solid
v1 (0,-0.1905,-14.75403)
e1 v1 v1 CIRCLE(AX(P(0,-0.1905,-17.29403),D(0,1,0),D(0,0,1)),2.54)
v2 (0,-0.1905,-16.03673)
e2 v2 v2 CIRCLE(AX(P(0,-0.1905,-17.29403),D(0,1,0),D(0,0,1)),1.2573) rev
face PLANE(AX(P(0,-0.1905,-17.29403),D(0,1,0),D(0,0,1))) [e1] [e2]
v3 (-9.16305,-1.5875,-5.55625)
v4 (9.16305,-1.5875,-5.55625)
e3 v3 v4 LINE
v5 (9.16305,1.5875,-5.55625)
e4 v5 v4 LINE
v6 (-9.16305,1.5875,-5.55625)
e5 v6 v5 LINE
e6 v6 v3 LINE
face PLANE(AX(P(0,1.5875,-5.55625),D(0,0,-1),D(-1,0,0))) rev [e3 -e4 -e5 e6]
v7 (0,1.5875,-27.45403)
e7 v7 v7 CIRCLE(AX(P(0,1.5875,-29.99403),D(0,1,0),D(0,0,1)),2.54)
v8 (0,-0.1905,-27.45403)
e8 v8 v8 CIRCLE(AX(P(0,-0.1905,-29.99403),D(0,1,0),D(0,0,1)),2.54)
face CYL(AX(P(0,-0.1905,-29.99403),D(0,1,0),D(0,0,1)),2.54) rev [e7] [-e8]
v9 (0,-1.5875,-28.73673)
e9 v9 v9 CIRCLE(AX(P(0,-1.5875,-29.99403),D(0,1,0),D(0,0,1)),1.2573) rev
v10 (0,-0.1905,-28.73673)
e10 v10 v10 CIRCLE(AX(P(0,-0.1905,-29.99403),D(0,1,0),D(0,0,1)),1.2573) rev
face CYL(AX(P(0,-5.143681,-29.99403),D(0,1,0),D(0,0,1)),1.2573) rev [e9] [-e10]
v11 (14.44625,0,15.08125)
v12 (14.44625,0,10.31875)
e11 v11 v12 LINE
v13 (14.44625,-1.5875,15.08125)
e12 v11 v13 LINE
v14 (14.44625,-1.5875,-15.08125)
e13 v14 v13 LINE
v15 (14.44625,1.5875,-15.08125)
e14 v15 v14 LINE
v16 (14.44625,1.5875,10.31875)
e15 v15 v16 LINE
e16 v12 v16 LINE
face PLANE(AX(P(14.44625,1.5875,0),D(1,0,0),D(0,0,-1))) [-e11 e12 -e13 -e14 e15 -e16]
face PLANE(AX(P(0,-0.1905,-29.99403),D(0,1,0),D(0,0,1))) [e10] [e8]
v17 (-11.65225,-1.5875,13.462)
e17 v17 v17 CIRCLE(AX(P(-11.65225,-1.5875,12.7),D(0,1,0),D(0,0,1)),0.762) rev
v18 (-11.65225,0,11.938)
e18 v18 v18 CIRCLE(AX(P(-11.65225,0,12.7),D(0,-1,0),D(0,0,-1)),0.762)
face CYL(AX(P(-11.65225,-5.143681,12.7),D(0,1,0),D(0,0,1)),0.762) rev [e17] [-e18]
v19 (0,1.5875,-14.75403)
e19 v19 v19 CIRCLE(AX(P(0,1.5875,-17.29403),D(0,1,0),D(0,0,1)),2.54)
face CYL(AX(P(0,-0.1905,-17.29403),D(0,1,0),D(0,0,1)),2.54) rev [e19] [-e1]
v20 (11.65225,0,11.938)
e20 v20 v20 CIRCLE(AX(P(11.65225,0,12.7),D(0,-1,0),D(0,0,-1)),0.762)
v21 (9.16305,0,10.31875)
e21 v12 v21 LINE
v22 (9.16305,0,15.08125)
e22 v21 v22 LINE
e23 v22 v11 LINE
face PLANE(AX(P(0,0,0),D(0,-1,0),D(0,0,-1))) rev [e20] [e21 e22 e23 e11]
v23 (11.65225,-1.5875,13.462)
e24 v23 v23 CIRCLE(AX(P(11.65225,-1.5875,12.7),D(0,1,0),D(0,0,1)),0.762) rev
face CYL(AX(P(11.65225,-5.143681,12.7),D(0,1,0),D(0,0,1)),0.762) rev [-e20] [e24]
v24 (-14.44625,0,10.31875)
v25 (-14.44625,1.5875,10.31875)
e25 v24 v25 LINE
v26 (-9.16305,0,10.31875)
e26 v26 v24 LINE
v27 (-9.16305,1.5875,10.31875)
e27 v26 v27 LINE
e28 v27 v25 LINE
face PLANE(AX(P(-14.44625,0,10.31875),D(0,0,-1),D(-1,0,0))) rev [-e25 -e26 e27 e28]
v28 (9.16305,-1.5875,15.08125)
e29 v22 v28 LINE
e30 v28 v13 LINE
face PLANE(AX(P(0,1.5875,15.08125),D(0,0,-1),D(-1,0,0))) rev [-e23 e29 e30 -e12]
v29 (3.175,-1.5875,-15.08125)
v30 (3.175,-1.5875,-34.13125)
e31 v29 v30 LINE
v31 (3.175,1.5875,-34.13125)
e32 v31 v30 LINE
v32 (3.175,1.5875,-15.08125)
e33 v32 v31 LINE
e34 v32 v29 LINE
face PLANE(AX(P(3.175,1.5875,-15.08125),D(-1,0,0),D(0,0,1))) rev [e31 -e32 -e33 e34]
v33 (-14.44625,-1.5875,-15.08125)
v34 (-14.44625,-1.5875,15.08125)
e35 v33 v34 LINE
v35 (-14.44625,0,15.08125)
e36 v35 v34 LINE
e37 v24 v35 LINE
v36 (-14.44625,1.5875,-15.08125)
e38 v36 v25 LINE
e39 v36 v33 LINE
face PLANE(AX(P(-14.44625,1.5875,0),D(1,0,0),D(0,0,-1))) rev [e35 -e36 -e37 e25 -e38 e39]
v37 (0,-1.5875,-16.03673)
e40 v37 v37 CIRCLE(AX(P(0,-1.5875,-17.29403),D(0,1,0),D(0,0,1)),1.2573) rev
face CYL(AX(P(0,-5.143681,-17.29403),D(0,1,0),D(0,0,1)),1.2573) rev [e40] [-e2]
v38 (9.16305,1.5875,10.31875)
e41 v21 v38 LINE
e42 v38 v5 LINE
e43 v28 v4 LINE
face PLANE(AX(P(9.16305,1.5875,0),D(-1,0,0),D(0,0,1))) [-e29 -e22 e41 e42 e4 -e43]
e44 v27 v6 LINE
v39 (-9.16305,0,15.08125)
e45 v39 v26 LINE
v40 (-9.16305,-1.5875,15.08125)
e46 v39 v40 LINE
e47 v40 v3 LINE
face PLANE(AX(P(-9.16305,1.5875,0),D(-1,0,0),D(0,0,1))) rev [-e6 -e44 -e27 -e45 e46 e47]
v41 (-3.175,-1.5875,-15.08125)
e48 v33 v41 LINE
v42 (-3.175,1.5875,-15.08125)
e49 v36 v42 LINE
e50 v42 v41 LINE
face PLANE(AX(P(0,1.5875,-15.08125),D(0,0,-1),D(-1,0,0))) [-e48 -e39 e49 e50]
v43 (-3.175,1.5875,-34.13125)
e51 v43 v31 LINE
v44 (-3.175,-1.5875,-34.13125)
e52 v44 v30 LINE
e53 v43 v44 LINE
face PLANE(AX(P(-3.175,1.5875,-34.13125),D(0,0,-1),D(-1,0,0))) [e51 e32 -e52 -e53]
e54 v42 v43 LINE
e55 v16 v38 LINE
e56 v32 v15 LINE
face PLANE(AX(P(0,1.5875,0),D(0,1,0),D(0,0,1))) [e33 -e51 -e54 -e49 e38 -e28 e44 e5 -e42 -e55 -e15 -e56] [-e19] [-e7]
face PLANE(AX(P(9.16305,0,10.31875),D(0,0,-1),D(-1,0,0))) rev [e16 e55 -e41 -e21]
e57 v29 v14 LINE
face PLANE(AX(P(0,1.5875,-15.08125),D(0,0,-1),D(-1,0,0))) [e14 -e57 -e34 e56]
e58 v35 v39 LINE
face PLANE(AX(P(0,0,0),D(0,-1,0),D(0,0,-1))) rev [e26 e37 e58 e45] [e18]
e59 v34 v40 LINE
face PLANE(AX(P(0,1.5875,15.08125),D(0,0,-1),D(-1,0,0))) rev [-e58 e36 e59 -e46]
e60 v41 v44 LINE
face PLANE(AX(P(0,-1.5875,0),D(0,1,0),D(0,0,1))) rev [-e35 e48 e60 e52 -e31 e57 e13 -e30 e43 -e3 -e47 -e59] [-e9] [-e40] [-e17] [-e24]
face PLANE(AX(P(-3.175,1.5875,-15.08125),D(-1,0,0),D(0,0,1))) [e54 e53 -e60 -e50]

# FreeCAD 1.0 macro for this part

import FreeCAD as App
import Part
import Sketcher
from FreeCAD import Vector
Q = App.Units.Quantity

doc = App.newDocument("Part")
body = doc.addObject("PartDesign::Body", "Body")

# Sketch on XZ plane
sketch1 = doc.addObject("Sketcher::SketchObject", "Sketch")
body.addObject(sketch1)
sketch1.AttachmentSupport = (doc.XZ_Plane, [""])
sketch1.MapMode = "FlatFace"
sketch1.addGeometry([
    Part.LineSegment(Vector(-14, -15, 0), Vector(-14, 15, 0)),  # 0
    Part.LineSegment(Vector(-14, 15, 0), Vector(-9, 15, 0)),  # 1
    Part.LineSegment(Vector(-9, 15, 0), Vector(-9, -6, 0)),  # 2
    Part.LineSegment(Vector(-9, -6, 0), Vector(9, -6, 0)),  # 3
    Part.LineSegment(Vector(9, -6, 0), Vector(9, 15, 0)),  # 4
    Part.LineSegment(Vector(9, 15, 0), Vector(14, 15, 0)),  # 5
    Part.LineSegment(Vector(14, 15, 0), Vector(14, -15, 0)),  # 6
    Part.LineSegment(Vector(14, -15, 0), Vector(3, -15, 0)),  # 7
    Part.LineSegment(Vector(3, -15, 0), Vector(3, -34, 0)),  # 8
    Part.LineSegment(Vector(3, -34, 0), Vector(-3, -34, 0)),  # 9
    Part.LineSegment(Vector(-3, -34, 0), Vector(-3, -15, 0)),  # 10
    Part.LineSegment(Vector(-3, -15, 0), Vector(-14, -15, 0)),  # 11
], False)
sketch1.addConstraint([
    Sketcher.Constraint("Coincident", 0, 2, 1, 1),
    Sketcher.Constraint("Coincident", 1, 2, 2, 1),
    Sketcher.Constraint("Coincident", 2, 2, 3, 1),
    Sketcher.Constraint("Coincident", 3, 2, 4, 1),
    Sketcher.Constraint("Coincident", 4, 2, 5, 1),
    Sketcher.Constraint("Coincident", 5, 2, 6, 1),
    Sketcher.Constraint("Coincident", 6, 2, 7, 1),
    Sketcher.Constraint("Coincident", 7, 2, 8, 1),
    Sketcher.Constraint("Coincident", 8, 2, 9, 1),
    Sketcher.Constraint("Coincident", 9, 2, 10, 1),
    Sketcher.Constraint("Coincident", 10, 2, 11, 1),
    Sketcher.Constraint("Coincident", 11, 2, 0, 1),
    Sketcher.Constraint("Vertical", 0),
    Sketcher.Constraint("Horizontal", 1),
    Sketcher.Constraint("Vertical", 2),
    Sketcher.Constraint("Horizontal", 3),
    Sketcher.Constraint("Vertical", 4),
    Sketcher.Constraint("Horizontal", 5),
    Sketcher.Constraint("Vertical", 6),
    Sketcher.Constraint("Horizontal", 7),
    Sketcher.Constraint("Vertical", 8),
    Sketcher.Constraint("Horizontal", 9),
    Sketcher.Constraint("Vertical", 10),
    Sketcher.Constraint("Horizontal", 11),
    Sketcher.Constraint("Symmetric", 0, 2, 6, 2, -1, 1),
    Sketcher.Constraint("Symmetric", 1, 2, 4, 2, -2),
    Sketcher.Constraint("Symmetric", 7, 2, 10, 2, -2),
    Sketcher.Constraint("DistanceX", 9, 2, 9, 1, Q("0.25 in")),
    Sketcher.Constraint("DistanceY", 8, 2, 8, 1, Q("0.75 in")),
    Sketcher.Constraint("DistanceX", 1, 1, 1, 2, Q("0.208 in")),
    Sketcher.Constraint("DistanceY", 0, 1, 0, 2, Q("1.1875 in")),
    Sketcher.Constraint("DistanceY", 2, 2, 2, 1, Q("0.8125 in")),
    Sketcher.Constraint("DistanceX", 3, 1, 3, 2, Q("0.7215 in")),
])
pad1 = doc.addObject("PartDesign::Pad", "Pad")
body.addObject(pad1)
pad1.Profile = sketch1
pad1.Length = Q("0.125 in")
pad1.Midplane = True

# Sketch on XZ plane
sketch2 = doc.addObject("Sketcher::SketchObject", "Sketch001")
body.addObject(sketch2)
sketch2.AttachmentSupport = (doc.XZ_Plane, [""])
sketch2.MapMode = "FlatFace"
sketch2.AttachmentOffset = App.Placement(Vector(0, 0, -0.0625 * 25.4), App.Rotation())
sketch2.addGeometry([
    Part.LineSegment(Vector(-14.4, 10.3, 0), Vector(-14.4, 15.1, 0)),  # 0
    Part.LineSegment(Vector(-14.4, 15.1, 0), Vector(-9.2, 15.1, 0)),  # 1
    Part.LineSegment(Vector(-9.2, 15.1, 0), Vector(-9.2, 10.3, 0)),  # 2
    Part.LineSegment(Vector(-9.2, 10.3, 0), Vector(-14.4, 10.3, 0)),  # 3
    Part.LineSegment(Vector(9.2, 10.3, 0), Vector(9.2, 15.1, 0)),  # 4
    Part.LineSegment(Vector(9.2, 15.1, 0), Vector(14.4, 15.1, 0)),  # 5
    Part.LineSegment(Vector(14.4, 15.1, 0), Vector(14.4, 10.3, 0)),  # 6
    Part.LineSegment(Vector(14.4, 10.3, 0), Vector(9.2, 10.3, 0)),  # 7
], False)
sketch2.addConstraint([
    Sketcher.Constraint("Coincident", 0, 2, 1, 1),
    Sketcher.Constraint("Coincident", 1, 2, 2, 1),
    Sketcher.Constraint("Coincident", 2, 2, 3, 1),
    Sketcher.Constraint("Coincident", 3, 2, 0, 1),
    Sketcher.Constraint("Coincident", 4, 2, 5, 1),
    Sketcher.Constraint("Coincident", 5, 2, 6, 1),
    Sketcher.Constraint("Coincident", 6, 2, 7, 1),
    Sketcher.Constraint("Coincident", 7, 2, 4, 1),
    Sketcher.Constraint("Vertical", 0),
    Sketcher.Constraint("Horizontal", 1),
    Sketcher.Constraint("Vertical", 2),
    Sketcher.Constraint("Horizontal", 3),
    Sketcher.Constraint("Vertical", 4),
    Sketcher.Constraint("Horizontal", 5),
    Sketcher.Constraint("Vertical", 6),
    Sketcher.Constraint("Horizontal", 7),
    Sketcher.Constraint("Symmetric", 1, 2, 4, 2, -2),
    Sketcher.Constraint("Symmetric", 3, 2, 6, 2, -2),
    Sketcher.Constraint("DistanceX", 1, 1, 1, 2, Q("0.208 in")),
    Sketcher.Constraint("DistanceY", 0, 1, 0, 2, Q("0.1875 in")),
    Sketcher.Constraint("DistanceY", -1, 1, 0, 2, Q("0.59375 in")),
    Sketcher.Constraint("DistanceX", 1, 2, 4, 2, Q("0.7215 in")),
])
pocket1 = doc.addObject("PartDesign::Pocket", "Pocket")
body.addObject(pocket1)
pocket1.Profile = sketch2
pocket1.Length = Q("0.0625 in")
pocket1.Reversed = True

# Sketch on XZ plane
sketch3 = doc.addObject("Sketcher::SketchObject", "Sketch002")
body.addObject(sketch3)
sketch3.AttachmentSupport = (doc.XZ_Plane, [""])
sketch3.MapMode = "FlatFace"
sketch3.AttachmentOffset = App.Placement(Vector(0, 0, -0.0625 * 25.4), App.Rotation())
sketch3.addGeometry([
    Part.Circle(Vector(-11.7, 12.7, 0), Vector(0, 0, 1), 0.8),
    Part.Circle(Vector(11.7, 12.7, 0), Vector(0, 0, 1), 0.8),
    Part.Circle(Vector(0, -17.3, 0), Vector(0, 0, 1), 1.3),
    Part.Circle(Vector(0, -30, 0), Vector(0, 0, 1), 1.3),
], False)
sketch3.addConstraint([
    Sketcher.Constraint("Equal", 0, 1),
    Sketcher.Constraint("Equal", 2, 3),
    Sketcher.Constraint("Symmetric", 0, 3, 1, 3, -2),
    Sketcher.Constraint("PointOnObject", 2, 3, -2),
    Sketcher.Constraint("PointOnObject", 3, 3, -2),
    Sketcher.Constraint("Diameter", 0, Q("0.06 in")),
    Sketcher.Constraint("Diameter", 2, Q("0.099 in")),
    Sketcher.Constraint("DistanceY", -1, 1, 0, 3, Q("0.5 in")),
    Sketcher.Constraint("DistanceY", 3, 3, 2, 3, Q("0.5 in")),
    Sketcher.Constraint("DistanceX", 0, 3, 1, 3, Q("0.9175 in")),
    Sketcher.Constraint("DistanceY", 2, 3, -1, 1, Q("17.29403 mm")),
])
pocket2 = doc.addObject("PartDesign::Pocket", "Pocket001")
body.addObject(pocket2)
pocket2.Profile = sketch3
pocket2.Length = Q("0.125 in")
pocket2.Reversed = True

# Sketch on XZ plane
sketch4 = doc.addObject("Sketcher::SketchObject", "Sketch003")
body.addObject(sketch4)
sketch4.AttachmentSupport = (doc.XZ_Plane, [""])
sketch4.MapMode = "FlatFace"
sketch4.AttachmentOffset = App.Placement(Vector(0, 0, -0.0625 * 25.4), App.Rotation())
sketch4.addGeometry([
    Part.Circle(Vector(0, -17.3, 0), Vector(0, 0, 1), 2.5),
    Part.Circle(Vector(0, -30, 0), Vector(0, 0, 1), 2.5),
], False)
sketch4.addConstraint([
    Sketcher.Constraint("Equal", 0, 1),
    Sketcher.Constraint("PointOnObject", 0, 3, -2),
    Sketcher.Constraint("PointOnObject", 1, 3, -2),
    Sketcher.Constraint("Diameter", 0, Q("0.2 in")),
    Sketcher.Constraint("DistanceY", 1, 3, 0, 3, Q("0.5 in")),
    Sketcher.Constraint("DistanceY", 0, 3, -1, 1, Q("17.29403 mm")),
])
pocket3 = doc.addObject("PartDesign::Pocket", "Pocket002")
body.addObject(pocket3)
pocket3.Profile = sketch4
pocket3.Length = Q("0.07 in")
pocket3.Reversed = True

doc.recompute()
